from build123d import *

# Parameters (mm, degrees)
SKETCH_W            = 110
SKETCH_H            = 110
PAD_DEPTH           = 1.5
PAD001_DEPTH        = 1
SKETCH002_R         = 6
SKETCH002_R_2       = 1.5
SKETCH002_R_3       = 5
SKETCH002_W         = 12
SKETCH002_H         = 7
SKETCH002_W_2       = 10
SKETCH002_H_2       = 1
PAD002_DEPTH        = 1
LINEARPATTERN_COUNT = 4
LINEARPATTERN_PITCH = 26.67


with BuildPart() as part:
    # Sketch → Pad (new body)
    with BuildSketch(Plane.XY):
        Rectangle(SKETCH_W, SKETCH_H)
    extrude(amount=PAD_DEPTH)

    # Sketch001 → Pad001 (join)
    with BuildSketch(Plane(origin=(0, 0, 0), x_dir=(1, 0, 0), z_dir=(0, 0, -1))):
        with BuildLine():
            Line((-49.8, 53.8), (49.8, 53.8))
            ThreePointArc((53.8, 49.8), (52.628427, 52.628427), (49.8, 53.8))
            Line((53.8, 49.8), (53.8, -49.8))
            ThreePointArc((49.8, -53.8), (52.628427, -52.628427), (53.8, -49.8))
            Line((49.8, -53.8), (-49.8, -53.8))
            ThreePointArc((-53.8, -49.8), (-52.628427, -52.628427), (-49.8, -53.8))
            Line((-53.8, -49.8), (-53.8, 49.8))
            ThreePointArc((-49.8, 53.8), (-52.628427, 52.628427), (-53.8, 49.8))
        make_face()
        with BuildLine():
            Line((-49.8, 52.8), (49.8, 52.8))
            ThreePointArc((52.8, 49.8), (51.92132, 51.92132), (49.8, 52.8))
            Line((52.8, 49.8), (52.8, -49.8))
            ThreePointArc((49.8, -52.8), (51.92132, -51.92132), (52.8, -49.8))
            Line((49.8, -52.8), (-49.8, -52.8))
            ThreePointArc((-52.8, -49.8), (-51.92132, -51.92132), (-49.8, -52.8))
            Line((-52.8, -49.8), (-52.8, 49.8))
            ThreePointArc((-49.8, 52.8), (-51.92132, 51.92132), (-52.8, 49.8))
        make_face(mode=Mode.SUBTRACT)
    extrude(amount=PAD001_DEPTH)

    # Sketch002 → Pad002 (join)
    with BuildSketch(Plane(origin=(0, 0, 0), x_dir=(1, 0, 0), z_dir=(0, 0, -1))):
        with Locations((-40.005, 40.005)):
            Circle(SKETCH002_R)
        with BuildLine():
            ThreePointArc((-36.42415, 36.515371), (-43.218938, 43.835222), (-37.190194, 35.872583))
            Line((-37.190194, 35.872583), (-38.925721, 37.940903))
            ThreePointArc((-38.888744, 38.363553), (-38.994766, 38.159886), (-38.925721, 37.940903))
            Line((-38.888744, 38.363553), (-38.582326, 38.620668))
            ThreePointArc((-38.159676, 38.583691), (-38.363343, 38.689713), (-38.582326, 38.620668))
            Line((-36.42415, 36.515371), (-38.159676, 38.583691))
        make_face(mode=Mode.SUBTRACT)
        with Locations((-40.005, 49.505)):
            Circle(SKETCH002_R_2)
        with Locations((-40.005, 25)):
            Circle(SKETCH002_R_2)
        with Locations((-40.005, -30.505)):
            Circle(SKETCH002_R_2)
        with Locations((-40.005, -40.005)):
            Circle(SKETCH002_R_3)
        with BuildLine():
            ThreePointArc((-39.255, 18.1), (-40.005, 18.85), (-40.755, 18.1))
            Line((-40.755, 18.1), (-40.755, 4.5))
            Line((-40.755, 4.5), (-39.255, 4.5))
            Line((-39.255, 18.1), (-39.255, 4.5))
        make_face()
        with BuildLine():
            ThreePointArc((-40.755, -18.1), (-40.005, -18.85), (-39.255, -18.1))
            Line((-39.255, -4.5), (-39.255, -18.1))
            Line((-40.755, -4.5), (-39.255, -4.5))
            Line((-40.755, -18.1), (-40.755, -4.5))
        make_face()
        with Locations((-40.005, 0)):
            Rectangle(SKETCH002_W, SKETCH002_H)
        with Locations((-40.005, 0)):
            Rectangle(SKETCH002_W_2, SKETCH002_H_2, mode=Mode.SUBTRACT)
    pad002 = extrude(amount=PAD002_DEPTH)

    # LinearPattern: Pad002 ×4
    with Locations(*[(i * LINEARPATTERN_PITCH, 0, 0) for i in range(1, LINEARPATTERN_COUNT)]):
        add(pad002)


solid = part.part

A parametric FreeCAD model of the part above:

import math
import FreeCAD as App
import Part
import Sketcher
from FreeCAD import Vector
Q = App.Units.Quantity


def add_polygon(sketch, points):
    """Adds a closed chain of lines whose ends are joined by coincident constraints."""
    first, n = sketch.GeometryCount, len(points)
    for a, b in zip(points, points[1:] + points[:1]):
        sketch.addGeometry(Part.LineSegment(App.Vector(*a, 0), App.Vector(*b, 0)), False)
    for i in range(n):
        sketch.addConstraint(Sketcher.Constraint("Coincident", first + i, 2, first + (i + 1) % n, 1))

doc = App.newDocument("Part")
params = doc.addObject("Spreadsheet::Sheet", "Params")
for row, (alias, value) in enumerate([
    ("sketch1_width", "110 mm"),
    ("pad1_length", "1.5 mm"),
    ("sketch2_radius", "4 mm"),
    ("sketch2_radius2", "3.000001 mm"),
    ("sketch2_width", "99.6 mm"),
    ("pad2_length", "1 mm"),
    ("sketch3_diameter", "12 mm"),
    ("sketch3_diameter2", "3 mm"),
    ("sketch3_diameter3", "10 mm"),
    ("sketch3_radius", "0.300001 mm"),
    ("sketch3_width", "12 mm"),
    ("pad3_length", "1 mm"),
    ("linearpattern_pitch", "26.67 mm"),
], start=1):
    params.set(f"A{row}", alias)
    params.set(f"B{row}", "=" + value)
    params.setAlias(f"B{row}", alias)

body = doc.addObject("PartDesign::Body", "Body")

# Sketch on XY plane
sketch1 = body.newObject("Sketcher::SketchObject", "Sketch")
sketch1.AttachmentSupport = (doc.getObject("XY_Plane"), [""])
sketch1.MapMode = "FlatFace"
add_polygon(sketch1, [(-55, 55), (-55, -55), (55, -55), (55, 55)])  # lines 0-3
sketch1.addConstraint(Sketcher.Constraint("Vertical", 0))
sketch1.addConstraint(Sketcher.Constraint("Horizontal", 1))
sketch1.addConstraint(Sketcher.Constraint("Vertical", 2))
sketch1.addConstraint(Sketcher.Constraint("Horizontal", 3))
sketch1.addConstraint(Sketcher.Constraint("Symmetric", 0, 2, 2, 2, -1, 1))
sketch1.addConstraint(Sketcher.Constraint("Equal", 3, 0))
sketch1.addConstraint(Sketcher.Constraint("DistanceX", 1, 1, 1, 2, 110.0))
sketch1.setExpression("Constraints[10]", "Params.sketch1_width")
pad1 = body.newObject("PartDesign::Pad", "Pad")
pad1.Profile = sketch1
pad1.setExpression("Length", "Params.pad1_length")

# Sketch on XY plane
sketch2 = body.newObject("Sketcher::SketchObject", "Sketch001")
sketch2.AttachmentSupport = (doc.getObject("XY_Plane"), [""])
sketch2.MapMode = "FlatFace"
sketch2.addGeometry(Part.LineSegment(Vector(49.8, -53.8, 0), Vector(-49.8, -53.8, 0)), False)
sketch2.addGeometry(Part.ArcOfCircle(Part.Circle(Vector(-49.8, -49.8, 0), Vector(0, 0, 1), 4), math.radians(-180), math.radians(-90)), False)
sketch2.addGeometry(Part.LineSegment(Vector(-53.8, -49.8, 0), Vector(-53.8, 49.8, 0)), False)
sketch2.addGeometry(Part.ArcOfCircle(Part.Circle(Vector(-49.8, 49.8, 0), Vector(0, 0, 1), 4), math.radians(90), math.radians(180)), False)
sketch2.addGeometry(Part.LineSegment(Vector(-49.8, 53.8, 0), Vector(49.8, 53.8, 0)), False)
sketch2.addGeometry(Part.ArcOfCircle(Part.Circle(Vector(49.8, 49.8, 0), Vector(0, 0, 1), 4), math.radians(0), math.radians(90)), False)
sketch2.addGeometry(Part.LineSegment(Vector(53.8, 49.8, 0), Vector(53.8, -49.8, 0)), False)
sketch2.addGeometry(Part.ArcOfCircle(Part.Circle(Vector(49.8, -49.8, 0), Vector(0, 0, 1), 4), math.radians(-90), math.radians(0)), False)
sketch2.addGeometry(Part.LineSegment(Vector(-49.8, -52.8, 0), Vector(49.8, -52.8, 0)), False)
sketch2.addGeometry(Part.ArcOfCircle(Part.Circle(Vector(49.8, -49.8, 0), Vector(0, 0, 1), 3), math.radians(-90), math.radians(0)), False)
sketch2.addGeometry(Part.LineSegment(Vector(52.8, -49.8, 0), Vector(52.8, 49.8, 0)), False)
sketch2.addGeometry(Part.ArcOfCircle(Part.Circle(Vector(49.8, 49.8, 0), Vector(0, 0, 1), 3), math.radians(0), math.radians(90)), False)
sketch2.addGeometry(Part.LineSegment(Vector(49.8, 52.8, 0), Vector(-49.8, 52.8, 0)), False)
sketch2.addGeometry(Part.ArcOfCircle(Part.Circle(Vector(-49.8, 49.8, 0), Vector(0, 0, 1), 3), math.radians(90), math.radians(180)), False)
sketch2.addGeometry(Part.LineSegment(Vector(-52.8, 49.8, 0), Vector(-52.8, -49.8, 0)), False)
sketch2.addGeometry(Part.ArcOfCircle(Part.Circle(Vector(-49.8, -49.8, 0), Vector(0, 0, 1), 3), math.radians(-180), math.radians(-90)), False)
sketch2.addConstraint(Sketcher.Constraint("Tangent", 0, 2, 1, 2))
sketch2.addConstraint(Sketcher.Constraint("Tangent", 1, 1, 2, 1))
sketch2.addConstraint(Sketcher.Constraint("Tangent", 2, 2, 3, 2))
sketch2.addConstraint(Sketcher.Constraint("Tangent", 3, 1, 4, 1))
sketch2.addConstraint(Sketcher.Constraint("Tangent", 4, 2, 5, 2))
sketch2.addConstraint(Sketcher.Constraint("Tangent", 5, 1, 6, 1))
sketch2.addConstraint(Sketcher.Constraint("Tangent", 6, 2, 7, 2))
sketch2.addConstraint(Sketcher.Constraint("Tangent", 7, 1, 0, 1))
sketch2.addConstraint(Sketcher.Constraint("Tangent", 8, 2, 9, 1))
sketch2.addConstraint(Sketcher.Constraint("Tangent", 9, 2, 10, 1))
sketch2.addConstraint(Sketcher.Constraint("Tangent", 10, 2, 11, 1))
sketch2.addConstraint(Sketcher.Constraint("Tangent", 11, 2, 12, 1))
sketch2.addConstraint(Sketcher.Constraint("Tangent", 12, 2, 13, 1))
sketch2.addConstraint(Sketcher.Constraint("Tangent", 13, 2, 14, 1))
sketch2.addConstraint(Sketcher.Constraint("Tangent", 14, 2, 15, 1))
sketch2.addConstraint(Sketcher.Constraint("Tangent", 15, 2, 8, 1))
sketch2.addConstraint(Sketcher.Constraint("Horizontal", 0))
sketch2.addConstraint(Sketcher.Constraint("Vertical", 2))
sketch2.addConstraint(Sketcher.Constraint("Horizontal", 4))
sketch2.addConstraint(Sketcher.Constraint("Vertical", 6))
sketch2.addConstraint(Sketcher.Constraint("Horizontal", 8))
sketch2.addConstraint(Sketcher.Constraint("Vertical", 10))
sketch2.addConstraint(Sketcher.Constraint("Horizontal", 12))
sketch2.addConstraint(Sketcher.Constraint("Vertical", 14))
sketch2.addConstraint(Sketcher.Constraint("Coincident", 9, 3, 7, 3))
sketch2.addConstraint(Sketcher.Constraint("Coincident", 11, 3, 5, 3))
sketch2.addConstraint(Sketcher.Constraint("Coincident", 13, 3, 3, 3))
sketch2.addConstraint(Sketcher.Constraint("Equal", 1, 3))
sketch2.addConstraint(Sketcher.Constraint("Equal", 3, 5))
sketch2.addConstraint(Sketcher.Constraint("Equal", 5, 7))
sketch2.addConstraint(Sketcher.Constraint("Equal", 13, 15))
sketch2.addConstraint(Sketcher.Constraint("Symmetric", 1, 3, 5, 3, -1, 1))
sketch2.addConstraint(Sketcher.Constraint("Equal", 12, 2))
sketch2.addConstraint(Sketcher.Constraint("Radius", 1, 4.0))
sketch2.addConstraint(Sketcher.Constraint("Radius", 9, 3.000001))
sketch2.addConstraint(Sketcher.Constraint("DistanceX", 0, 2, 0, 1, 99.6))
sketch2.setExpression("Constraints[33]", "Params.sketch2_radius")
sketch2.setExpression("Constraints[34]", "Params.sketch2_radius2")
sketch2.setExpression("Constraints[35]", "Params.sketch2_width")
pad2 = body.newObject("PartDesign::Pad", "Pad001")
pad2.Profile = sketch2
pad2.setExpression("Length", "Params.pad2_length")
pad2.Reversed = True

# Sketch on XY plane
sketch3 = body.newObject("Sketcher::SketchObject", "Sketch002")
sketch3.AttachmentSupport = (doc.getObject("XY_Plane"), [""])
sketch3.MapMode = "FlatFace"
sketch3.addGeometry(Part.Circle(Vector(-40.01, -40.01, 0), Vector(0, 0, 1), 6), False)  # 0
sketch3.addGeometry(Part.ArcOfCircle(Part.Circle(Vector(-40.01, -40, 0), Vector(0, 0, 1), 5), math.radians(56), math.radians(404)), False)  # 1
sketch3.addGeometry(Part.LineSegment(Vector(-36.42, -36.52, 0), Vector(-38.16, -38.58, 0)), False)  # 2
sketch3.addGeometry(Part.ArcOfCircle(Part.Circle(Vector(-38.39, -38.39, 0), Vector(0, 0, 1), 0.3), math.radians(-130), math.radians(-40)), False)  # 3
sketch3.addGeometry(Part.LineSegment(Vector(-38.58, -38.62, 0), Vector(-38.89, -38.36, 0)), False)  # 4
sketch3.addGeometry(Part.ArcOfCircle(Part.Circle(Vector(-38.7, -38.13, 0), Vector(0, 0, 1), 0.3), math.radians(140), math.radians(230)), False)  # 5
sketch3.addGeometry(Part.LineSegment(Vector(-38.93, -37.94, 0), Vector(-37.19, -35.87, 0)), False)  # 6
sketch3.addGeometry(Part.Circle(Vector(-40.01, -49.51, 0), Vector(0, 0, 1), 1.5), False)  # 7
sketch3.addGeometry(Part.Circle(Vector(-40.01, -25, 0), Vector(0, 0, 1), 1.5), False)  # 8
sketch3.addGeometry(Part.Circle(Vector(-40.01, 30.5, 0), Vector(0, 0, 1), 1.5), False)  # 9
sketch3.addGeometry(Part.Circle(Vector(-40.01, 40.01, 0), Vector(0, 0, 1), 5), False)  # 10
sketch3.addGeometry(Part.ArcOfCircle(Part.Circle(Vector(-40.01, -18.1, 0), Vector(0, 0, 1), 0.75), math.radians(180), math.radians(360)), False)  # 11
sketch3.addGeometry(Part.LineSegment(Vector(-40.76, -18.1, 0), Vector(-40.76, -4.5, 0)), False)  # 12
sketch3.addGeometry(Part.LineSegment(Vector(-40.76, -4.5, 0), Vector(-39.26, -4.5, 0)), False)  # 13
sketch3.addGeometry(Part.LineSegment(Vector(-39.26, -4.5, 0), Vector(-39.26, -18.1, 0)), False)  # 14
sketch3.addGeometry(Part.ArcOfCircle(Part.Circle(Vector(-40.01, 18.1, 0), Vector(0, 0, 1), 0.75), math.radians(0), math.radians(180)), False)  # 15
sketch3.addGeometry(Part.LineSegment(Vector(-39.26, 18.1, 0), Vector(-39.26, 4.5, 0)), False)  # 16
sketch3.addGeometry(Part.LineSegment(Vector(-39.26, 4.5, 0), Vector(-40.76, 4.5, 0)), False)  # 17
sketch3.addGeometry(Part.LineSegment(Vector(-40.76, 4.5, 0), Vector(-40.76, 18.1, 0)), False)  # 18
add_polygon(sketch3, [(-46.01, -3.5), (-46.01, 3.5), (-34.01, 3.5), (-34.01, -3.5)])  # lines 19-22
add_polygon(sketch3, [(-35.01, 0.5), (-45.01, 0.5), (-45.01, -0.5), (-35.01, -0.5)])  # lines 23-26
sketch3.addConstraint(Sketcher.Constraint("Coincident", 1, 2, 2, 1))
sketch3.addConstraint(Sketcher.Constraint("Tangent", 2, 2, 3, 2))
sketch3.addConstraint(Sketcher.Constraint("Tangent", 3, 1, 4, 1))
sketch3.addConstraint(Sketcher.Constraint("Coincident", 4, 2, 5, 2))
sketch3.addConstraint(Sketcher.Constraint("Tangent", 5, 1, 6, 1))
sketch3.addConstraint(Sketcher.Constraint("Coincident", 6, 2, 1, 1))
sketch3.addConstraint(Sketcher.Constraint("Tangent", 11, 1, 12, 1))
sketch3.addConstraint(Sketcher.Constraint("Coincident", 12, 2, 13, 1))
sketch3.addConstraint(Sketcher.Constraint("Coincident", 13, 2, 14, 1))
sketch3.addConstraint(Sketcher.Constraint("Tangent", 14, 2, 11, 2))
sketch3.addConstraint(Sketcher.Constraint("Tangent", 15, 1, 16, 1))
sketch3.addConstraint(Sketcher.Constraint("Coincident", 16, 2, 17, 1))
sketch3.addConstraint(Sketcher.Constraint("Coincident", 17, 2, 18, 1))
sketch3.addConstraint(Sketcher.Constraint("Tangent", 18, 2, 15, 2))
sketch3.addConstraint(Sketcher.Constraint("Vertical", 12))
sketch3.addConstraint(Sketcher.Constraint("Horizontal", 13))
sketch3.addConstraint(Sketcher.Constraint("Vertical", 14))
sketch3.addConstraint(Sketcher.Constraint("Vertical", 16))
sketch3.addConstraint(Sketcher.Constraint("Horizontal", 17))
sketch3.addConstraint(Sketcher.Constraint("Vertical", 18))
sketch3.addConstraint(Sketcher.Constraint("Vertical", 19))
sketch3.addConstraint(Sketcher.Constraint("Horizontal", 20))
sketch3.addConstraint(Sketcher.Constraint("Vertical", 21))
sketch3.addConstraint(Sketcher.Constraint("Horizontal", 22))
sketch3.addConstraint(Sketcher.Constraint("Horizontal", 23))
sketch3.addConstraint(Sketcher.Constraint("Vertical", 24))
sketch3.addConstraint(Sketcher.Constraint("Horizontal", 25))
sketch3.addConstraint(Sketcher.Constraint("Vertical", 26))
sketch3.addConstraint(Sketcher.Constraint("Coincident", 1, 3, 0, 3))
sketch3.addConstraint(Sketcher.Constraint("Equal", 3, 5))
sketch3.addConstraint(Sketcher.Constraint("Equal", 7, 8))
sketch3.addConstraint(Sketcher.Constraint("Equal", 8, 9))
sketch3.addConstraint(Sketcher.Constraint("Equal", 1, 10))
sketch3.addConstraint(Sketcher.Constraint("Equal", 11, 15))
sketch3.addConstraint(Sketcher.Constraint("Symmetric", 0, 3, 10, 3, -1))
sketch3.addConstraint(Sketcher.Constraint("Symmetric", 11, 3, 15, 3, -1))
sketch3.addConstraint(Sketcher.Constraint("Perpendicular", 2, 4))
sketch3.addConstraint(Sketcher.Constraint("Perpendicular", 4, 6))
sketch3.addConstraint(Sketcher.Constraint("Vertical", 0, 3, 7, 3))
sketch3.addConstraint(Sketcher.Constraint("Vertical", 7, 3, 8, 3))
sketch3.addConstraint(Sketcher.Constraint("Vertical", 8, 3, 9, 3))
sketch3.addConstraint(Sketcher.Constraint("Vertical", 10, 3, 11, 3))
sketch3.addConstraint(Sketcher.Constraint("Equal", 14, 16))
sketch3.addConstraint(Sketcher.Constraint("Equal", 2, 6))
sketch3.addConstraint(Sketcher.Constraint("Diameter", 0, 12.0))
sketch3.addConstraint(Sketcher.Constraint("Diameter", 7, 3.0))
sketch3.addConstraint(Sketcher.Constraint("Diameter", 10, 10.0))
sketch3.addConstraint(Sketcher.Constraint("Radius", 3, 0.300001))
sketch3.addConstraint(Sketcher.Constraint("DistanceX", 20, 1, 20, 2, 12.0))
sketch3.addConstraint(Sketcher.Constraint("DistanceX", 23, 2, 23, 1, 10.0))
sketch3.addConstraint(Sketcher.Constraint("DistanceY", 19, 1, 19, 2, 7.0))
sketch3.addConstraint(Sketcher.Constraint("DistanceY", 24, 2, 24, 1, 1.0))
sketch3.addConstraint(Sketcher.Constraint("Angle", 2, Q("-129.999991 deg")))
sketch3.addConstraint(Sketcher.Constraint("Radius", 11, 0.75))
sketch3.addConstraint(Sketcher.Constraint("DistanceY", 12, 1, 12, 2, 13.6))
sketch3.addConstraint(Sketcher.Constraint("DistanceY", 8, 3, -1, 1, 25.0))
sketch3.addConstraint(Sketcher.Constraint("DistanceY", 13, 2, 16, 2, 9.0))
sketch3.addConstraint(Sketcher.Constraint("DistanceY", 19, 2, 17, 2, 1.0))
sketch3.addConstraint(Sketcher.Constraint("DistanceX", 19, 2, 23, 2, 1.0))
sketch3.addConstraint(Sketcher.Constraint("DistanceY", 23, 2, 19, 2, 3.0))
sketch3.addConstraint(Sketcher.Constraint("Distance", 2, 2.7))
sketch3.addConstraint(Sketcher.Constraint("Distance", 4, 0.4))
sketch3.addConstraint(Sketcher.Constraint("DistanceY", 7, 3, 0, 3, 9.5))
sketch3.addConstraint(Sketcher.Constraint("DistanceY", 9, 3, 10, 3, 9.5))
sketch3.addConstraint(Sketcher.Constraint("DistanceY", 1, 3, 9, 3, 70.509998))
sketch3.addConstraint(Sketcher.Constraint("DistanceX", 19, 2, 17, 2, 5.25))
sketch3.addConstraint(Sketcher.Constraint("DistanceX", 0, 3, -1, 1, 40.005))
sketch3.addConstraint(Sketcher.Constraint("DistanceX", 3, 3, -1, 1, 38.38949))
sketch3.setExpression("Constraints[52]", "Params.sketch3_diameter")
sketch3.setExpression("Constraints[53]", "Params.sketch3_diameter2")
sketch3.setExpression("Constraints[54]", "Params.sketch3_diameter3")
sketch3.setExpression("Constraints[55]", "Params.sketch3_radius")
sketch3.setExpression("Constraints[56]", "Params.sketch3_width")
pad3 = body.newObject("PartDesign::Pad", "Pad002")
pad3.Profile = sketch3
pad3.setExpression("Length", "Params.pad3_length")
pad3.Reversed = True
doc.recompute()

linearpattern = body.newObject("PartDesign::LinearPattern", "LinearPattern")
linearpattern.Originals = [pad3]
linearpattern.Direction = (doc.getObject("X_Axis"), [""])
linearpattern.Mode = "offset"
linearpattern.setExpression("Offset", "Params.linearpattern_pitch")
linearpattern.Occurrences = 4
body.Tip = linearpattern

doc.recompute()
